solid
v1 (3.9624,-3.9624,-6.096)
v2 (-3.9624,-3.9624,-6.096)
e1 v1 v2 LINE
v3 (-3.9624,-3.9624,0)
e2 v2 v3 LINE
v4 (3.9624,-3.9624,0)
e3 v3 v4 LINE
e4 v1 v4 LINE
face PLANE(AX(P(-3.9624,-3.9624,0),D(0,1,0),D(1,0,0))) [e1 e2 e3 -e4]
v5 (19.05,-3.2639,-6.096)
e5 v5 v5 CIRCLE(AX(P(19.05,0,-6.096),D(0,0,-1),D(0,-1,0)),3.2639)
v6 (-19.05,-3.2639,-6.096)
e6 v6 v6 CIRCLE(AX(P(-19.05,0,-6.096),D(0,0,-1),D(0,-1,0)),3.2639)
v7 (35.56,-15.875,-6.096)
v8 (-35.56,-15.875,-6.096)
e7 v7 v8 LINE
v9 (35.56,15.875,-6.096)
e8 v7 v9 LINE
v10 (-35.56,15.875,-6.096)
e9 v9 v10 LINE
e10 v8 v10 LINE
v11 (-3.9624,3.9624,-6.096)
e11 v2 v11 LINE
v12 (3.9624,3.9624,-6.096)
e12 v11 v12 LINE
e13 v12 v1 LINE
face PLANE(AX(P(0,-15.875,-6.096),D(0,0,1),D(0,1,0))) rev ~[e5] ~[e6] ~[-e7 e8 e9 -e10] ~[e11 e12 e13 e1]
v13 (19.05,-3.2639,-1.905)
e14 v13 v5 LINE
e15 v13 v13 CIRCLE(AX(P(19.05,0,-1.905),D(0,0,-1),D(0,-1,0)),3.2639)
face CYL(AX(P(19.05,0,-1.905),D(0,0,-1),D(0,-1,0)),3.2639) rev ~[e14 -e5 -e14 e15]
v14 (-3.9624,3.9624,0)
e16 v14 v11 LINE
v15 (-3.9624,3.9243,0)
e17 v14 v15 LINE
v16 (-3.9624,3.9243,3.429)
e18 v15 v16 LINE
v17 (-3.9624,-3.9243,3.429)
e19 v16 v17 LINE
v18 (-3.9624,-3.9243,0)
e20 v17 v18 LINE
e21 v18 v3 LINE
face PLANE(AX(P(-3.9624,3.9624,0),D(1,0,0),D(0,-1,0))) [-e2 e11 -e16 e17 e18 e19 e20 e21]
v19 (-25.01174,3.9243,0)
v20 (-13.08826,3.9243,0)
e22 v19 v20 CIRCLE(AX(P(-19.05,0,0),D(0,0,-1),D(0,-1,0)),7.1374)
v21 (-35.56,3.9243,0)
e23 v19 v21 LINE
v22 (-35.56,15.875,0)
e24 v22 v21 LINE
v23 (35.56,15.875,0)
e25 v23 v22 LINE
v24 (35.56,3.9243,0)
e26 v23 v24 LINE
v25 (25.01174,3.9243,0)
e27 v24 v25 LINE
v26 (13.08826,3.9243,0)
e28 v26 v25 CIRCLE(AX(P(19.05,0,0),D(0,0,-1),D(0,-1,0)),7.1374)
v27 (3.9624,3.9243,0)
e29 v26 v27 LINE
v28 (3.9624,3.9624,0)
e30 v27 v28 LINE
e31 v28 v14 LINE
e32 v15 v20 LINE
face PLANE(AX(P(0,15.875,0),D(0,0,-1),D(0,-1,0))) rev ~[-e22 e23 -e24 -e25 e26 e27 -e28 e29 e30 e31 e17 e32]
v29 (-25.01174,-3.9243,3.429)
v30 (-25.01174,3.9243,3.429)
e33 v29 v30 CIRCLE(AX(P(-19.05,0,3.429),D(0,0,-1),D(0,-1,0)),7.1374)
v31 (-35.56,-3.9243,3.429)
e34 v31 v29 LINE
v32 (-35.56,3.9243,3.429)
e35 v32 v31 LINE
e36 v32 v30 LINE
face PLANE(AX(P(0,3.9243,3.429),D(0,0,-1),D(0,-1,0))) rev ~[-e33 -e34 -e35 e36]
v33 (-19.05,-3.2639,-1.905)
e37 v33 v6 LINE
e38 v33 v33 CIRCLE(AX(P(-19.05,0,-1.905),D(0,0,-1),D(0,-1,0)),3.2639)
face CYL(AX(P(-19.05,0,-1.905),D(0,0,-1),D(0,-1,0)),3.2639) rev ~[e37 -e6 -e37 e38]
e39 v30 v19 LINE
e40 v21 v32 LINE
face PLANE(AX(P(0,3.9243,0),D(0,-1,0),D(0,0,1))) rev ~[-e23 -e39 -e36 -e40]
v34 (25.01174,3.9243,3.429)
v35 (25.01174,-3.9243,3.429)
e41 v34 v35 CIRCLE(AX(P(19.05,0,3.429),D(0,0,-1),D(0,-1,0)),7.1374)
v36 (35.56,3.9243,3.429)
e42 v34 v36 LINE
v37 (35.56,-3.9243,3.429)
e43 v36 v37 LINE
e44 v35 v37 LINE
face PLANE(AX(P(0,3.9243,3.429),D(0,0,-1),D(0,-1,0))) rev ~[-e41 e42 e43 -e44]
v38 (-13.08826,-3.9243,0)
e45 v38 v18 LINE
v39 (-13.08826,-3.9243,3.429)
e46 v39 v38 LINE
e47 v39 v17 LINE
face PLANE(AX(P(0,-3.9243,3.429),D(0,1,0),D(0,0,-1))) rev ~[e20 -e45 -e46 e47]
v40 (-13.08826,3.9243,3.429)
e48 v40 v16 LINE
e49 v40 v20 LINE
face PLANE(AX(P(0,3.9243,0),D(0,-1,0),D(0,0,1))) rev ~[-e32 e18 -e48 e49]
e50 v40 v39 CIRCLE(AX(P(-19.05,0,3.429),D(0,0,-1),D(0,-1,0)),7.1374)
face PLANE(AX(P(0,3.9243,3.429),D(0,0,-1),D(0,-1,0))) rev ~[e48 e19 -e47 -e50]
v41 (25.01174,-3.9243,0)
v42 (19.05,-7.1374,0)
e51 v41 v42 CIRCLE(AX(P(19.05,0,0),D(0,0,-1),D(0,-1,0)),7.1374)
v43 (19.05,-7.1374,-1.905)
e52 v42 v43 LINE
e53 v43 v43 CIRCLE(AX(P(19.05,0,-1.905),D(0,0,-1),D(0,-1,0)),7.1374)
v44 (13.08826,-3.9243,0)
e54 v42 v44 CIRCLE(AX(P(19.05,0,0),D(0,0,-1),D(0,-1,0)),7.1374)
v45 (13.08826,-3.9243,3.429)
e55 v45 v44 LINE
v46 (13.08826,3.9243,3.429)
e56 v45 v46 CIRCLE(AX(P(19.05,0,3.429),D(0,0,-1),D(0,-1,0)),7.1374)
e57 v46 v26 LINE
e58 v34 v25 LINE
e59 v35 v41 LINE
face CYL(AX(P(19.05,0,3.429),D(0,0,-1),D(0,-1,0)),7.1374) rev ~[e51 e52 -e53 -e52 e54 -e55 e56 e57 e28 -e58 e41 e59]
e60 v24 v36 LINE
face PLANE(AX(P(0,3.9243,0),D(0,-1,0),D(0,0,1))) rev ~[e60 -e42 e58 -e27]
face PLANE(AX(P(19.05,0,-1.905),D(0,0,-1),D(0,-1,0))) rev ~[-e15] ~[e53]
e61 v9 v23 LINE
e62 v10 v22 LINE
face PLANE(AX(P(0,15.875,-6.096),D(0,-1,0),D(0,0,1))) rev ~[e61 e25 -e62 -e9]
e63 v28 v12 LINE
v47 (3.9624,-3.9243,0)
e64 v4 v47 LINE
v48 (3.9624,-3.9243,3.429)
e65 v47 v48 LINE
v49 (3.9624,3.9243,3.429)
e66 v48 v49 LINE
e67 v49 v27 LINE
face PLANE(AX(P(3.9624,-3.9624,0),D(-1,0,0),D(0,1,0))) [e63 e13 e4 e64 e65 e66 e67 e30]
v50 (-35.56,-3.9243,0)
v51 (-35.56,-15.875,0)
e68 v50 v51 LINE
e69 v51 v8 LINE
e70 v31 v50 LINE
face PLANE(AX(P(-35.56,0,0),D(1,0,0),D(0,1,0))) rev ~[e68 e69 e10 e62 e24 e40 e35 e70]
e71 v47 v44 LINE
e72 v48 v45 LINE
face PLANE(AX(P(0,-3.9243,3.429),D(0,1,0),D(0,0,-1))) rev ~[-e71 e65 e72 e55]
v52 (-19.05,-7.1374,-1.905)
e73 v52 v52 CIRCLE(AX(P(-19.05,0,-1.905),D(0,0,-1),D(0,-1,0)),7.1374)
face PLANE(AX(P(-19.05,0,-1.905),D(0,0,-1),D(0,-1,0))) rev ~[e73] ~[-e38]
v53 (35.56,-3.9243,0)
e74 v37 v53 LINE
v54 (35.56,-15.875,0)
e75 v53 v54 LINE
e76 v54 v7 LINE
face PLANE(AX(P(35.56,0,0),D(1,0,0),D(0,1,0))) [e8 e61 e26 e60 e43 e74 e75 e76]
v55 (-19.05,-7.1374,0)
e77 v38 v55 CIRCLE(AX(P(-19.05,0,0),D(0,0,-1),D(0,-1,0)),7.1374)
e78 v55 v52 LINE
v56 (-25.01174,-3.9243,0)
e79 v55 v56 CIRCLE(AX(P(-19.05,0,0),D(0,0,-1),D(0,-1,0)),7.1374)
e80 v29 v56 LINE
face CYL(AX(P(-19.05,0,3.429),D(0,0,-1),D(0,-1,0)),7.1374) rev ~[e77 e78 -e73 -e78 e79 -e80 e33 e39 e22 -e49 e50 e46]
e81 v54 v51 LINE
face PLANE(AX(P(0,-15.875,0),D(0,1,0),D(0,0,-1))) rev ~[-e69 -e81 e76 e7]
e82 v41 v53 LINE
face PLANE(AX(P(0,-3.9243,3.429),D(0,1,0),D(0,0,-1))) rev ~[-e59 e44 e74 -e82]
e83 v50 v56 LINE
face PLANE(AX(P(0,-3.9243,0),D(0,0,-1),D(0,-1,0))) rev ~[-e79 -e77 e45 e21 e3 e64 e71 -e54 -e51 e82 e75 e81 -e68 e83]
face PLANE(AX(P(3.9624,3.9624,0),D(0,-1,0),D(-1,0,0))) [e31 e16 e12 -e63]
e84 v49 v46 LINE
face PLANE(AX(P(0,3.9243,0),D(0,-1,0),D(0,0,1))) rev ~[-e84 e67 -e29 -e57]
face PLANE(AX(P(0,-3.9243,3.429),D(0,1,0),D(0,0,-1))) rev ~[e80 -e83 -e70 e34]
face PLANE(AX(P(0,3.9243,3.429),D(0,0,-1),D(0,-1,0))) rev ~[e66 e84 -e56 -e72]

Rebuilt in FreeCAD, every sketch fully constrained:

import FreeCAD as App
import Part
import Sketcher

V = App.Vector
Q = App.Units.Quantity


def add_polygon(sketch, points):
    """Adds a closed chain of lines whose ends are joined by coincident constraints."""
    first, n = sketch.GeometryCount, len(points)
    for a, b in zip(points, points[1:] + points[:1]):
        sketch.addGeometry(Part.LineSegment(App.Vector(*a, 0), App.Vector(*b, 0)), False)
    for i in range(n):
        sketch.addConstraint(Sketcher.Constraint("Coincident", first + i, 2, first + (i + 1) % n, 1))

doc = App.newDocument("Part")
body = doc.addObject("PartDesign::Body", "Body")

# Sketch on YZ plane
sketch1 = body.newObject("Sketcher::SketchObject", "Sketch")
sketch1.AttachmentSupport = (doc.getObject("YZ_Plane"), [""])
sketch1.MapMode = "FlatFace"
add_polygon(sketch1, [(3.9, 0), (3.9, 3.4), (-3.9, 3.4), (-3.9, 0), (-15.9, 0), (-15.9, -6.1), (15.9, -6.1), (15.9, 0)])  # lines 0-7
sketch1.addConstraint([
    Sketcher.Constraint("Vertical", 0),
    Sketcher.Constraint("Horizontal", 1),
    Sketcher.Constraint("Vertical", 2),
    Sketcher.Constraint("Horizontal", 3),
    Sketcher.Constraint("Vertical", 4),
    Sketcher.Constraint("Horizontal", 5),
    Sketcher.Constraint("Vertical", 6),
    Sketcher.Constraint("Horizontal", 7),
    Sketcher.Constraint("Symmetric", 3, 2, 6, 2, -1, 1),
    Sketcher.Constraint("Symmetric", 2, 2, 7, 2, -2),
    Sketcher.Constraint("DistanceX", 5, 1, 5, 2, Q("1.25 in")),
    Sketcher.Constraint("DistanceY", 4, 2, 4, 1, Q("0.24 in")),
    Sketcher.Constraint("DistanceX", 1, 2, 1, 1, Q("0.309 in")),
    Sketcher.Constraint("DistanceY", 0, 1, 0, 2, Q("0.135 in")),
])
pad1 = body.newObject("PartDesign::Pad", "Pad")
pad1.Profile = sketch1
pad1.Length = Q("2.8 in")
pad1.Midplane = True

# Sketch on XY plane
sketch2 = body.newObject("Sketcher::SketchObject", "Sketch001")
sketch2.AttachmentSupport = (doc.getObject("XY_Plane"), [""])
sketch2.MapMode = "FlatFace"
sketch2.AttachmentOffset = App.Placement(V(0, 0, 0.135 * 25.4), App.Rotation())
sketch2.addGeometry(Part.Circle(V(-19.1, 0, 0), V(0, 0, 1), 3.3), False)
sketch2.addConstraint([
    Sketcher.Constraint("PointOnObject", 0, 3, -1),
    Sketcher.Constraint("Diameter", 0, Q("0.257 in")),
    Sketcher.Constraint("DistanceX", 0, 3, -1, 1, Q("0.75 in")),
])
doc.recompute()
hole = body.newObject("PartDesign::Hole", "Hole")
hole.Profile = sketch2
hole.ThreadType = "None"
hole.Diameter = Q("0.257 in")
hole.DepthType = "Dimension"
hole.Depth = Q("0.375 in")
hole.DrillPoint = "Flat"
hole.HoleCutType = "Counterbore"
hole.HoleCutDiameter = Q("0.562 in")
hole.HoleCutDepth = Q("0.21 in")

# Sketch on XY plane
sketch3 = body.newObject("Sketcher::SketchObject", "Sketch002")
sketch3.AttachmentSupport = (doc.getObject("XY_Plane"), [""])
sketch3.MapMode = "FlatFace"
sketch3.AttachmentOffset = App.Placement(V(0, 0, 0.135 * 25.4), App.Rotation())
sketch3.addGeometry(Part.Circle(V(19.1, 0, 0), V(0, 0, 1), 3.3), False)
sketch3.addConstraint([
    Sketcher.Constraint("PointOnObject", 0, 3, -1),
    Sketcher.Constraint("Diameter", 0, Q("0.257 in")),
    Sketcher.Constraint("DistanceX", -1, 1, 0, 3, Q("0.75 in")),
])
doc.recompute()
hole2 = body.newObject("PartDesign::Hole", "Hole001")
hole2.Profile = sketch3
hole2.ThreadType = "None"
hole2.Diameter = Q("0.257 in")
hole2.DepthType = "Dimension"
hole2.Depth = Q("0.375 in")
hole2.DrillPoint = "Flat"
hole2.HoleCutType = "Counterbore"
hole2.HoleCutDiameter = Q("0.562 in")
hole2.HoleCutDepth = Q("0.21 in")

# Sketch on XY plane
sketch4 = body.newObject("Sketcher::SketchObject", "Sketch003")
sketch4.AttachmentSupport = (doc.getObject("XY_Plane"), [""])
sketch4.MapMode = "FlatFace"
add_polygon(sketch4, [(-4, 4), (-4, -4), (4, -4), (4, 4)])  # lines 0-3
sketch4.addConstraint([
    Sketcher.Constraint("Vertical", 0),
    Sketcher.Constraint("Horizontal", 1),
    Sketcher.Constraint("Vertical", 2),
    Sketcher.Constraint("Horizontal", 3),
    Sketcher.Constraint("Symmetric", 0, 2, 2, 2, -1, 1),
    Sketcher.Constraint("Equal", 3, 0),
    Sketcher.Constraint("DistanceX", 1, 1, 1, 2, Q("0.312 in")),
])
pocket1 = body.newObject("PartDesign::Pocket", "Pocket")
pocket1.Profile = sketch4
pocket1.Length = Q("0.6 in")
pocket1.Midplane = True

doc.recompute()
